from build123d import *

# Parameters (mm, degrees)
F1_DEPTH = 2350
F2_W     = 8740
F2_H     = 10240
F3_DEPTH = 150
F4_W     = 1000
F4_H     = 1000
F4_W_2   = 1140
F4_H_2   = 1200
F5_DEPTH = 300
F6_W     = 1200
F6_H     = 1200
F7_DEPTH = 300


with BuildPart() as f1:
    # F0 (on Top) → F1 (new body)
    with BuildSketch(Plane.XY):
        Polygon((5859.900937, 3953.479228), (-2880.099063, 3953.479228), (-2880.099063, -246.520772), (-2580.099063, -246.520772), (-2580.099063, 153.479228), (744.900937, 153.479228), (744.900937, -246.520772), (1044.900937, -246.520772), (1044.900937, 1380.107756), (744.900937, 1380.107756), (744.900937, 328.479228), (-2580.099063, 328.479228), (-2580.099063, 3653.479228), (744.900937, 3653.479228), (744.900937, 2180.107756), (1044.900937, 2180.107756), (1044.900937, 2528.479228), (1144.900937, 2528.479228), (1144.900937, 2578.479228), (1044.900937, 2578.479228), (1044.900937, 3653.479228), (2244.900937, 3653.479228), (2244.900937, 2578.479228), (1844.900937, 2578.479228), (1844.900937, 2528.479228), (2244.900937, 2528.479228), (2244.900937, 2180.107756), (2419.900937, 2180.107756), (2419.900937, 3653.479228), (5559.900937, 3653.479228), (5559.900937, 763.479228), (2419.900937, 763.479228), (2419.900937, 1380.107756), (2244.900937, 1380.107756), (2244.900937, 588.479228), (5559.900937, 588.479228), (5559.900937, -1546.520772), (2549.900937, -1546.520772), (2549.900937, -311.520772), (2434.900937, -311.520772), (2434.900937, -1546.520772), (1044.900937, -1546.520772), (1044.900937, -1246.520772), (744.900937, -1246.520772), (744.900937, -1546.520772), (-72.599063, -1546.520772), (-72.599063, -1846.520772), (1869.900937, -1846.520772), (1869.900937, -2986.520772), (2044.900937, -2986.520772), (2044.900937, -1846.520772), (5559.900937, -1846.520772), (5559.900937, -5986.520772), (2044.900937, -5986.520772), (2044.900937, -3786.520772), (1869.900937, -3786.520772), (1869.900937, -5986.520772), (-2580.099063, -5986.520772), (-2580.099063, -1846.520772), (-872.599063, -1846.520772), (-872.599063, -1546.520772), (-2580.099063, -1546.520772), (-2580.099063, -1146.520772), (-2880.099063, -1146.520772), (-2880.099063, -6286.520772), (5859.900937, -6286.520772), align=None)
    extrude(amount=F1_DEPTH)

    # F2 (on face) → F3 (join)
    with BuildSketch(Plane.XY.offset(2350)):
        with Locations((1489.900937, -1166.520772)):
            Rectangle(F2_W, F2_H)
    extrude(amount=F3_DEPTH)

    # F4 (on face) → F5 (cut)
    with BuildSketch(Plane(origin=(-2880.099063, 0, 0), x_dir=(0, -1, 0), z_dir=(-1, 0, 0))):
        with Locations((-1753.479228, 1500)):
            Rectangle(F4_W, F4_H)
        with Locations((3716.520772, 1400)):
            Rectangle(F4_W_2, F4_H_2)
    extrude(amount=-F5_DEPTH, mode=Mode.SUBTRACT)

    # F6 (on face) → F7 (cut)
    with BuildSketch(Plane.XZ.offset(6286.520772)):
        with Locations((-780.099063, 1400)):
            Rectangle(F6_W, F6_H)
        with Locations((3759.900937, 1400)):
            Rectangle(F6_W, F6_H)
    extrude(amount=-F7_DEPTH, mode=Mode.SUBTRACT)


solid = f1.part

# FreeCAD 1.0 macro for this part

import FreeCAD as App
import Part
import Sketcher

doc = App.newDocument("Part")
params = doc.addObject("Spreadsheet::Sheet", "Params")
for row, (alias, value) in enumerate([
    ("sketch1_width", "8740 mm"),
    ("sketch1_width2", "300 mm"),
    ("sketch1_width3", "3325 mm"),
    ("sketch1_width4", "100 mm"),
    ("sketch1_width5", "1200 mm"),
    ("pad1_length", "2350 mm"),
    ("sketch2_width", "8740 mm"),
    ("sketch2_height", "10240 mm"),
    ("pad2_length", "150 mm"),
    ("sketch3_width", "1000 mm"),
    ("sketch3_width2", "1140 mm"),
    ("sketch3_height", "1200 mm"),
    ("pocket1_length", "300 mm"),
    ("sketch4_width", "1200 mm"),
    ("pocket2_length", "300 mm"),
], start=1):
    params.set(f"A{row}", alias)
    params.set(f"B{row}", "=" + value)
    params.setAlias(f"B{row}", alias)

body = doc.addObject("PartDesign::Body", "Body")

sketch1 = body.newObject("Sketcher::SketchObject", "Sketch")
sketch1.AttachmentSupport = (doc.getObject("XY_Plane"), [""])
sketch1.MapMode = "FlatFace"
sketch1.addGeometry(Part.LineSegment(App.Vector(5860, 3953, 0), App.Vector(-2880, 3953, 0)), False)
sketch1.addGeometry(Part.LineSegment(App.Vector(-2880, 3953, 0), App.Vector(-2880, -247, 0)), False)
sketch1.addGeometry(Part.LineSegment(App.Vector(-2880, -247, 0), App.Vector(-2580, -247, 0)), False)
sketch1.addGeometry(Part.LineSegment(App.Vector(-2580, -247, 0), App.Vector(-2580, 153, 0)), False)
sketch1.addGeometry(Part.LineSegment(App.Vector(-2580, 153, 0), App.Vector(745, 153, 0)), False)
sketch1.addGeometry(Part.LineSegment(App.Vector(745, 153, 0), App.Vector(745, -247, 0)), False)
sketch1.addGeometry(Part.LineSegment(App.Vector(745, -247, 0), App.Vector(1045, -247, 0)), False)
sketch1.addGeometry(Part.LineSegment(App.Vector(1045, -247, 0), App.Vector(1045, 1380, 0)), False)
sketch1.addGeometry(Part.LineSegment(App.Vector(1045, 1380, 0), App.Vector(745, 1380, 0)), False)
sketch1.addGeometry(Part.LineSegment(App.Vector(745, 1380, 0), App.Vector(745, 328, 0)), False)
sketch1.addGeometry(Part.LineSegment(App.Vector(745, 328, 0), App.Vector(-2580, 328, 0)), False)
sketch1.addGeometry(Part.LineSegment(App.Vector(-2580, 328, 0), App.Vector(-2580, 3653, 0)), False)
sketch1.addGeometry(Part.LineSegment(App.Vector(-2580, 3653, 0), App.Vector(745, 3653, 0)), False)
sketch1.addGeometry(Part.LineSegment(App.Vector(745, 3653, 0), App.Vector(745, 2180, 0)), False)
sketch1.addGeometry(Part.LineSegment(App.Vector(745, 2180, 0), App.Vector(1045, 2180, 0)), False)
sketch1.addGeometry(Part.LineSegment(App.Vector(1045, 2180, 0), App.Vector(1045, 2528, 0)), False)
sketch1.addGeometry(Part.LineSegment(App.Vector(1045, 2528, 0), App.Vector(1145, 2528, 0)), False)
sketch1.addGeometry(Part.LineSegment(App.Vector(1145, 2528, 0), App.Vector(1145, 2578, 0)), False)
sketch1.addGeometry(Part.LineSegment(App.Vector(1145, 2578, 0), App.Vector(1045, 2578, 0)), False)
sketch1.addGeometry(Part.LineSegment(App.Vector(1045, 2578, 0), App.Vector(1045, 3653, 0)), False)
sketch1.addGeometry(Part.LineSegment(App.Vector(1045, 3653, 0), App.Vector(2245, 3653, 0)), False)
sketch1.addGeometry(Part.LineSegment(App.Vector(2245, 3653, 0), App.Vector(2245, 2578, 0)), False)
sketch1.addGeometry(Part.LineSegment(App.Vector(2245, 2578, 0), App.Vector(1845, 2578, 0)), False)
sketch1.addGeometry(Part.LineSegment(App.Vector(1845, 2578, 0), App.Vector(1845, 2528, 0)), False)
sketch1.addGeometry(Part.LineSegment(App.Vector(1845, 2528, 0), App.Vector(2245, 2528, 0)), False)
sketch1.addGeometry(Part.LineSegment(App.Vector(2245, 2528, 0), App.Vector(2245, 2180, 0)), False)
sketch1.addGeometry(Part.LineSegment(App.Vector(2245, 2180, 0), App.Vector(2420, 2180, 0)), False)
sketch1.addGeometry(Part.LineSegment(App.Vector(2420, 2180, 0), App.Vector(2420, 3653, 0)), False)
sketch1.addGeometry(Part.LineSegment(App.Vector(2420, 3653, 0), App.Vector(5560, 3653, 0)), False)
sketch1.addGeometry(Part.LineSegment(App.Vector(5560, 3653, 0), App.Vector(5560, 763, 0)), False)
sketch1.addGeometry(Part.LineSegment(App.Vector(5560, 763, 0), App.Vector(2420, 763, 0)), False)
sketch1.addGeometry(Part.LineSegment(App.Vector(2420, 763, 0), App.Vector(2420, 1380, 0)), False)
sketch1.addGeometry(Part.LineSegment(App.Vector(2420, 1380, 0), App.Vector(2245, 1380, 0)), False)
sketch1.addGeometry(Part.LineSegment(App.Vector(2245, 1380, 0), App.Vector(2245, 588, 0)), False)
sketch1.addGeometry(Part.LineSegment(App.Vector(2245, 588, 0), App.Vector(5560, 588, 0)), False)
sketch1.addGeometry(Part.LineSegment(App.Vector(5560, 588, 0), App.Vector(5560, -1547, 0)), False)
sketch1.addGeometry(Part.LineSegment(App.Vector(5560, -1547, 0), App.Vector(2550, -1547, 0)), False)
sketch1.addGeometry(Part.LineSegment(App.Vector(2550, -1547, 0), App.Vector(2550, -312, 0)), False)
sketch1.addGeometry(Part.LineSegment(App.Vector(2550, -312, 0), App.Vector(2435, -312, 0)), False)
sketch1.addGeometry(Part.LineSegment(App.Vector(2435, -312, 0), App.Vector(2435, -1547, 0)), False)
sketch1.addGeometry(Part.LineSegment(App.Vector(2435, -1547, 0), App.Vector(1045, -1547, 0)), False)
sketch1.addGeometry(Part.LineSegment(App.Vector(1045, -1547, 0), App.Vector(1045, -1247, 0)), False)
sketch1.addGeometry(Part.LineSegment(App.Vector(1045, -1247, 0), App.Vector(745, -1247, 0)), False)
sketch1.addGeometry(Part.LineSegment(App.Vector(745, -1247, 0), App.Vector(745, -1547, 0)), False)
sketch1.addGeometry(Part.LineSegment(App.Vector(745, -1547, 0), App.Vector(-73, -1547, 0)), False)
sketch1.addGeometry(Part.LineSegment(App.Vector(-73, -1547, 0), App.Vector(-73, -1847, 0)), False)
sketch1.addGeometry(Part.LineSegment(App.Vector(-73, -1847, 0), App.Vector(1870, -1847, 0)), False)
sketch1.addGeometry(Part.LineSegment(App.Vector(1870, -1847, 0), App.Vector(1870, -2987, 0)), False)
sketch1.addGeometry(Part.LineSegment(App.Vector(1870, -2987, 0), App.Vector(2045, -2987, 0)), False)
sketch1.addGeometry(Part.LineSegment(App.Vector(2045, -2987, 0), App.Vector(2045, -1847, 0)), False)
sketch1.addGeometry(Part.LineSegment(App.Vector(2045, -1847, 0), App.Vector(5560, -1847, 0)), False)
sketch1.addGeometry(Part.LineSegment(App.Vector(5560, -1847, 0), App.Vector(5560, -5987, 0)), False)
sketch1.addGeometry(Part.LineSegment(App.Vector(5560, -5987, 0), App.Vector(2045, -5987, 0)), False)
sketch1.addGeometry(Part.LineSegment(App.Vector(2045, -5987, 0), App.Vector(2045, -3787, 0)), False)
sketch1.addGeometry(Part.LineSegment(App.Vector(2045, -3787, 0), App.Vector(1870, -3787, 0)), False)
sketch1.addGeometry(Part.LineSegment(App.Vector(1870, -3787, 0), App.Vector(1870, -5987, 0)), False)
sketch1.addGeometry(Part.LineSegment(App.Vector(1870, -5987, 0), App.Vector(-2580, -5987, 0)), False)
sketch1.addGeometry(Part.LineSegment(App.Vector(-2580, -5987, 0), App.Vector(-2580, -1847, 0)), False)
sketch1.addGeometry(Part.LineSegment(App.Vector(-2580, -1847, 0), App.Vector(-873, -1847, 0)), False)
sketch1.addGeometry(Part.LineSegment(App.Vector(-873, -1847, 0), App.Vector(-873, -1547, 0)), False)
sketch1.addGeometry(Part.LineSegment(App.Vector(-873, -1547, 0), App.Vector(-2580, -1547, 0)), False)
sketch1.addGeometry(Part.LineSegment(App.Vector(-2580, -1547, 0), App.Vector(-2580, -1147, 0)), False)
sketch1.addGeometry(Part.LineSegment(App.Vector(-2580, -1147, 0), App.Vector(-2880, -1147, 0)), False)
sketch1.addGeometry(Part.LineSegment(App.Vector(-2880, -1147, 0), App.Vector(-2880, -6287, 0)), False)
sketch1.addGeometry(Part.LineSegment(App.Vector(-2880, -6287, 0), App.Vector(5860, -6287, 0)), False)
sketch1.addGeometry(Part.LineSegment(App.Vector(5860, -6287, 0), App.Vector(5860, 3953, 0)), False)
sketch1.addConstraint(Sketcher.Constraint("Coincident", 0, 2, 1, 1))
sketch1.addConstraint(Sketcher.Constraint("Coincident", 1, 2, 2, 1))
sketch1.addConstraint(Sketcher.Constraint("Coincident", 2, 2, 3, 1))
sketch1.addConstraint(Sketcher.Constraint("Coincident", 3, 2, 4, 1))
sketch1.addConstraint(Sketcher.Constraint("Coincident", 4, 2, 5, 1))
sketch1.addConstraint(Sketcher.Constraint("Coincident", 5, 2, 6, 1))
sketch1.addConstraint(Sketcher.Constraint("Coincident", 6, 2, 7, 1))
sketch1.addConstraint(Sketcher.Constraint("Coincident", 7, 2, 8, 1))
sketch1.addConstraint(Sketcher.Constraint("Coincident", 8, 2, 9, 1))
sketch1.addConstraint(Sketcher.Constraint("Coincident", 9, 2, 10, 1))
sketch1.addConstraint(Sketcher.Constraint("Coincident", 10, 2, 11, 1))
sketch1.addConstraint(Sketcher.Constraint("Coincident", 11, 2, 12, 1))
sketch1.addConstraint(Sketcher.Constraint("Coincident", 12, 2, 13, 1))
sketch1.addConstraint(Sketcher.Constraint("Coincident", 13, 2, 14, 1))
sketch1.addConstraint(Sketcher.Constraint("Coincident", 14, 2, 15, 1))
sketch1.addConstraint(Sketcher.Constraint("Coincident", 15, 2, 16, 1))
sketch1.addConstraint(Sketcher.Constraint("Coincident", 16, 2, 17, 1))
sketch1.addConstraint(Sketcher.Constraint("Coincident", 17, 2, 18, 1))
sketch1.addConstraint(Sketcher.Constraint("Coincident", 18, 2, 19, 1))
sketch1.addConstraint(Sketcher.Constraint("Coincident", 19, 2, 20, 1))
sketch1.addConstraint(Sketcher.Constraint("Coincident", 20, 2, 21, 1))
sketch1.addConstraint(Sketcher.Constraint("Coincident", 21, 2, 22, 1))
sketch1.addConstraint(Sketcher.Constraint("Coincident", 22, 2, 23, 1))
sketch1.addConstraint(Sketcher.Constraint("Coincident", 23, 2, 24, 1))
sketch1.addConstraint(Sketcher.Constraint("Coincident", 24, 2, 25, 1))
sketch1.addConstraint(Sketcher.Constraint("Coincident", 25, 2, 26, 1))
sketch1.addConstraint(Sketcher.Constraint("Coincident", 26, 2, 27, 1))
sketch1.addConstraint(Sketcher.Constraint("Coincident", 27, 2, 28, 1))
sketch1.addConstraint(Sketcher.Constraint("Coincident", 28, 2, 29, 1))
sketch1.addConstraint(Sketcher.Constraint("Coincident", 29, 2, 30, 1))
sketch1.addConstraint(Sketcher.Constraint("Coincident", 30, 2, 31, 1))
sketch1.addConstraint(Sketcher.Constraint("Coincident", 31, 2, 32, 1))
sketch1.addConstraint(Sketcher.Constraint("Coincident", 32, 2, 33, 1))
sketch1.addConstraint(Sketcher.Constraint("Coincident", 33, 2, 34, 1))
sketch1.addConstraint(Sketcher.Constraint("Coincident", 34, 2, 35, 1))
sketch1.addConstraint(Sketcher.Constraint("Coincident", 35, 2, 36, 1))
sketch1.addConstraint(Sketcher.Constraint("Coincident", 36, 2, 37, 1))
sketch1.addConstraint(Sketcher.Constraint("Coincident", 37, 2, 38, 1))
sketch1.addConstraint(Sketcher.Constraint("Coincident", 38, 2, 39, 1))
sketch1.addConstraint(Sketcher.Constraint("Coincident", 39, 2, 40, 1))
sketch1.addConstraint(Sketcher.Constraint("Coincident", 40, 2, 41, 1))
sketch1.addConstraint(Sketcher.Constraint("Coincident", 41, 2, 42, 1))
sketch1.addConstraint(Sketcher.Constraint("Coincident", 42, 2, 43, 1))
sketch1.addConstraint(Sketcher.Constraint("Coincident", 43, 2, 44, 1))
sketch1.addConstraint(Sketcher.Constraint("Coincident", 44, 2, 45, 1))
sketch1.addConstraint(Sketcher.Constraint("Coincident", 45, 2, 46, 1))
sketch1.addConstraint(Sketcher.Constraint("Coincident", 46, 2, 47, 1))
sketch1.addConstraint(Sketcher.Constraint("Coincident", 47, 2, 48, 1))
sketch1.addConstraint(Sketcher.Constraint("Coincident", 48, 2, 49, 1))
sketch1.addConstraint(Sketcher.Constraint("Coincident", 49, 2, 50, 1))
sketch1.addConstraint(Sketcher.Constraint("Coincident", 50, 2, 51, 1))
sketch1.addConstraint(Sketcher.Constraint("Coincident", 51, 2, 52, 1))
sketch1.addConstraint(Sketcher.Constraint("Coincident", 52, 2, 53, 1))
sketch1.addConstraint(Sketcher.Constraint("Coincident", 53, 2, 54, 1))
sketch1.addConstraint(Sketcher.Constraint("Coincident", 54, 2, 55, 1))
sketch1.addConstraint(Sketcher.Constraint("Coincident", 55, 2, 56, 1))
sketch1.addConstraint(Sketcher.Constraint("Coincident", 56, 2, 57, 1))
sketch1.addConstraint(Sketcher.Constraint("Coincident", 57, 2, 58, 1))
sketch1.addConstraint(Sketcher.Constraint("Coincident", 58, 2, 59, 1))
sketch1.addConstraint(Sketcher.Constraint("Coincident", 59, 2, 60, 1))
sketch1.addConstraint(Sketcher.Constraint("Coincident", 60, 2, 61, 1))
sketch1.addConstraint(Sketcher.Constraint("Coincident", 61, 2, 62, 1))
sketch1.addConstraint(Sketcher.Constraint("Coincident", 62, 2, 63, 1))
sketch1.addConstraint(Sketcher.Constraint("Coincident", 63, 2, 64, 1))
sketch1.addConstraint(Sketcher.Constraint("Coincident", 64, 2, 65, 1))
sketch1.addConstraint(Sketcher.Constraint("Coincident", 65, 2, 0, 1))
sketch1.addConstraint(Sketcher.Constraint("Horizontal", 0))
sketch1.addConstraint(Sketcher.Constraint("Vertical", 1))
sketch1.addConstraint(Sketcher.Constraint("Horizontal", 2))
sketch1.addConstraint(Sketcher.Constraint("Vertical", 3))
sketch1.addConstraint(Sketcher.Constraint("Horizontal", 4))
sketch1.addConstraint(Sketcher.Constraint("Vertical", 5))
sketch1.addConstraint(Sketcher.Constraint("Horizontal", 6))
sketch1.addConstraint(Sketcher.Constraint("Vertical", 7))
sketch1.addConstraint(Sketcher.Constraint("Horizontal", 8))
sketch1.addConstraint(Sketcher.Constraint("Vertical", 9))
sketch1.addConstraint(Sketcher.Constraint("Horizontal", 10))
sketch1.addConstraint(Sketcher.Constraint("Vertical", 11))
sketch1.addConstraint(Sketcher.Constraint("Horizontal", 12))
sketch1.addConstraint(Sketcher.Constraint("Vertical", 13))
sketch1.addConstraint(Sketcher.Constraint("Horizontal", 14))
sketch1.addConstraint(Sketcher.Constraint("Vertical", 15))
sketch1.addConstraint(Sketcher.Constraint("Horizontal", 16))
sketch1.addConstraint(Sketcher.Constraint("Vertical", 17))
sketch1.addConstraint(Sketcher.Constraint("Horizontal", 18))
sketch1.addConstraint(Sketcher.Constraint("Vertical", 19))
sketch1.addConstraint(Sketcher.Constraint("Horizontal", 20))
sketch1.addConstraint(Sketcher.Constraint("Vertical", 21))
sketch1.addConstraint(Sketcher.Constraint("Horizontal", 22))
sketch1.addConstraint(Sketcher.Constraint("Vertical", 23))
sketch1.addConstraint(Sketcher.Constraint("Horizontal", 24))
sketch1.addConstraint(Sketcher.Constraint("Vertical", 25))
sketch1.addConstraint(Sketcher.Constraint("Horizontal", 26))
sketch1.addConstraint(Sketcher.Constraint("Vertical", 27))
sketch1.addConstraint(Sketcher.Constraint("Horizontal", 28))
sketch1.addConstraint(Sketcher.Constraint("Vertical", 29))
sketch1.addConstraint(Sketcher.Constraint("Horizontal", 30))
sketch1.addConstraint(Sketcher.Constraint("Vertical", 31))
sketch1.addConstraint(Sketcher.Constraint("Horizontal", 32))
sketch1.addConstraint(Sketcher.Constraint("Vertical", 33))
sketch1.addConstraint(Sketcher.Constraint("Horizontal", 34))
sketch1.addConstraint(Sketcher.Constraint("Vertical", 35))
sketch1.addConstraint(Sketcher.Constraint("Horizontal", 36))
sketch1.addConstraint(Sketcher.Constraint("Vertical", 37))
sketch1.addConstraint(Sketcher.Constraint("Horizontal", 38))
sketch1.addConstraint(Sketcher.Constraint("Vertical", 39))
sketch1.addConstraint(Sketcher.Constraint("Horizontal", 40))
sketch1.addConstraint(Sketcher.Constraint("Vertical", 41))
sketch1.addConstraint(Sketcher.Constraint("Horizontal", 42))
sketch1.addConstraint(Sketcher.Constraint("Vertical", 43))
sketch1.addConstraint(Sketcher.Constraint("Horizontal", 44))
sketch1.addConstraint(Sketcher.Constraint("Vertical", 45))
sketch1.addConstraint(Sketcher.Constraint("Horizontal", 46))
sketch1.addConstraint(Sketcher.Constraint("Vertical", 47))
sketch1.addConstraint(Sketcher.Constraint("Horizontal", 48))
sketch1.addConstraint(Sketcher.Constraint("Vertical", 49))
sketch1.addConstraint(Sketcher.Constraint("Horizontal", 50))
sketch1.addConstraint(Sketcher.Constraint("Vertical", 51))
sketch1.addConstraint(Sketcher.Constraint("Horizontal", 52))
sketch1.addConstraint(Sketcher.Constraint("Vertical", 53))
sketch1.addConstraint(Sketcher.Constraint("Horizontal", 54))
sketch1.addConstraint(Sketcher.Constraint("Vertical", 55))
sketch1.addConstraint(Sketcher.Constraint("Horizontal", 56))
sketch1.addConstraint(Sketcher.Constraint("Vertical", 57))
sketch1.addConstraint(Sketcher.Constraint("Horizontal", 58))
sketch1.addConstraint(Sketcher.Constraint("Vertical", 59))
sketch1.addConstraint(Sketcher.Constraint("Horizontal", 60))
sketch1.addConstraint(Sketcher.Constraint("Vertical", 61))
sketch1.addConstraint(Sketcher.Constraint("Horizontal", 62))
sketch1.addConstraint(Sketcher.Constraint("Vertical", 63))
sketch1.addConstraint(Sketcher.Constraint("Horizontal", 64))
sketch1.addConstraint(Sketcher.Constraint("Vertical", 65))
sketch1.addConstraint(Sketcher.Constraint("Horizontal", 2, 2, 5, 2))
sketch1.addConstraint(Sketcher.Constraint("Horizontal", 12, 2, 19, 2))
sketch1.addConstraint(Sketcher.Constraint("Horizontal", 18, 2, 21, 2))
sketch1.addConstraint(Sketcher.Constraint("Horizontal", 16, 2, 23, 2))
sketch1.addConstraint(Sketcher.Constraint("Horizontal", 14, 2, 25, 2))
sketch1.addConstraint(Sketcher.Constraint("Horizontal", 20, 2, 27, 2))
sketch1.addConstraint(Sketcher.Constraint("Horizontal", 8, 2, 31, 2))
sketch1.addConstraint(Sketcher.Constraint("Horizontal", 36, 2, 39, 2))
sketch1.addConstraint(Sketcher.Constraint("Horizontal", 40, 2, 43, 2))
sketch1.addConstraint(Sketcher.Constraint("Horizontal", 46, 2, 49, 2))
sketch1.addConstraint(Sketcher.Constraint("Horizontal", 52, 2, 55, 2))
sketch1.addConstraint(Sketcher.Constraint("Horizontal", 50, 2, 57, 2))
sketch1.addConstraint(Sketcher.Constraint("Horizontal", 44, 2, 59, 2))
sketch1.addConstraint(Sketcher.Constraint("Vertical", 5, 2, 8, 2))
sketch1.addConstraint(Sketcher.Constraint("Vertical", 3, 2, 10, 2))
sketch1.addConstraint(Sketcher.Constraint("Vertical", 9, 2, 12, 2))
sketch1.addConstraint(Sketcher.Constraint("Vertical", 7, 2, 14, 2))
sketch1.addConstraint(Sketcher.Constraint("Vertical", 15, 2, 18, 2))
sketch1.addConstraint(Sketcher.Constraint("Vertical", 21, 2, 24, 2))
sketch1.addConstraint(Sketcher.Constraint("Vertical", 27, 2, 30, 2))
sketch1.addConstraint(Sketcher.Constraint("Vertical", 25, 2, 32, 2))
sketch1.addConstraint(Sketcher.Constraint("Vertical", 29, 2, 34, 2))
sketch1.addConstraint(Sketcher.Constraint("Vertical", 19, 2, 40, 2))
sketch1.addConstraint(Sketcher.Constraint("Vertical", 13, 2, 42, 2))
sketch1.addConstraint(Sketcher.Constraint("Vertical", 35, 2, 50, 2))
sketch1.addConstraint(Sketcher.Constraint("Vertical", 49, 2, 52, 2))
sketch1.addConstraint(Sketcher.Constraint("Vertical", 47, 2, 54, 2))
sketch1.addConstraint(Sketcher.Constraint("Vertical", 11, 2, 56, 2))
sketch1.addConstraint(Sketcher.Constraint("Vertical", 57, 2, 60, 2))
sketch1.addConstraint(Sketcher.Constraint("Vertical", 1, 2, 62, 2))
sketch1.addConstraint(Sketcher.Constraint("Equal", 2, 6))
sketch1.addConstraint(Sketcher.Constraint("Equal", 32, 48))
sketch1.addConstraint(Sketcher.Constraint("Equal", 24, 3))
sketch1.addConstraint(Sketcher.Constraint("Equal", 12, 11))
sketch1.addConstraint(Sketcher.Constraint("Equal", 62, 41))
sketch1.addConstraint(Sketcher.Constraint("Equal", 43, 45))
sketch1.addConstraint(Sketcher.Constraint("Equal", 5, 61))
sketch1.addConstraint(Sketcher.Constraint("DistanceX", 0, 2, 0, 1, 8740.0))
sketch1.addConstraint(Sketcher.Constraint("DistanceX", 2, 1, 2, 2, 300.0))
sketch1.addConstraint(Sketcher.Constraint("DistanceX", 4, 1, 4, 2, 3325.0))
sketch1.addConstraint(Sketcher.Constraint("DistanceX", 16, 1, 16, 2, 100.0))
sketch1.addConstraint(Sketcher.Constraint("DistanceX", 20, 1, 20, 2, 1200.0))
sketch1.addConstraint(Sketcher.Constraint("DistanceX", 22, 2, 22, 1, 400.0))
sketch1.addConstraint(Sketcher.Constraint("DistanceX", 26, 1, 26, 2, 175.0))
sketch1.addConstraint(Sketcher.Constraint("DistanceX", 28, 1, 28, 2, 3140.0))
sketch1.addConstraint(Sketcher.Constraint("DistanceX", 36, 2, 36, 1, 3010.0))
sketch1.addConstraint(Sketcher.Constraint("DistanceX", 38, 2, 38, 1, 115.0))
sketch1.addConstraint(Sketcher.Constraint("DistanceX", 50, 1, 50, 2, 3515.0))
sketch1.addConstraint(Sketcher.Constraint("DistanceY", 1, 2, 1, 1, 4200.0))
sketch1.addConstraint(Sketcher.Constraint("DistanceY", 17, 1, 17, 2, 50.0))
sketch1.addConstraint(Sketcher.Constraint("DistanceY", 19, 1, 19, 2, 1075.0))
sketch1.addConstraint(Sketcher.Constraint("DistanceY", 29, 2, 29, 1, 2890.0))
sketch1.addConstraint(Sketcher.Constraint("DistanceY", 35, 2, 35, 1, 2135.0))
sketch1.addConstraint(Sketcher.Constraint("DistanceY", 37, 1, 37, 2, 1235.0))
sketch1.addConstraint(Sketcher.Constraint("DistanceY", 47, 2, 47, 1, 1140.0))
sketch1.addConstraint(Sketcher.Constraint("DistanceY", 51, 2, 51, 1, 4140.0))
sketch1.addConstraint(Sketcher.Constraint("DistanceY", 53, 1, 53, 2, 2200.0))
sketch1.addConstraint(Sketcher.Constraint("DistanceY", 63, 2, 63, 1, 5140.0))
sketch1.addConstraint(Sketcher.Constraint("DistanceY", 65, 1, 65, 2, 10240.0))
sketch1.addConstraint(Sketcher.Constraint("DistanceX", 44, 2, 44, 1, 817.5))
sketch1.addConstraint(Sketcher.Constraint("DistanceX", 58, 1, 58, 2, 1707.5))
sketch1.addConstraint(Sketcher.Constraint("DistanceY", 7, 1, 7, 2, 1626.628528))
sketch1.addConstraint(Sketcher.Constraint("DistanceY", 9, 2, 9, 1, 1051.628528))
sketch1.addConstraint(Sketcher.Constraint("DistanceY", 13, 2, 13, 1, 1473.371472))
sketch1.addConstraint(Sketcher.Constraint("DistanceY", -1, 1, 0, 2, 3953.479228))
sketch1.addConstraint(Sketcher.Constraint("DistanceX", 0, 2, -1, 1, 2880.099063))
sketch1.setExpression("Constraints[169]", "Params.sketch1_width")
sketch1.setExpression("Constraints[170]", "Params.sketch1_width2")
sketch1.setExpression("Constraints[171]", "Params.sketch1_width3")
sketch1.setExpression("Constraints[172]", "Params.sketch1_width4")
sketch1.setExpression("Constraints[173]", "Params.sketch1_width5")
pad1 = body.newObject("PartDesign::Pad", "Pad")
pad1.Profile = sketch1
pad1.setExpression("Length", "Params.pad1_length")

sketch2 = body.newObject("Sketcher::SketchObject", "Sketch001")
sketch2.AttachmentSupport = (doc.getObject("XY_Plane"), [""])
sketch2.MapMode = "FlatFace"
sketch2.AttachmentOffset = App.Placement(App.Vector(0, 0, 2350), App.Rotation())
sketch2.addGeometry(Part.LineSegment(App.Vector(-2880, 3953, 0), App.Vector(-2880, -6287, 0)), False)
sketch2.addGeometry(Part.LineSegment(App.Vector(-2880, -6287, 0), App.Vector(5860, -6287, 0)), False)
sketch2.addGeometry(Part.LineSegment(App.Vector(5860, -6287, 0), App.Vector(5860, 3953, 0)), False)
sketch2.addGeometry(Part.LineSegment(App.Vector(5860, 3953, 0), App.Vector(-2880, 3953, 0)), False)
sketch2.addConstraint(Sketcher.Constraint("Coincident", 0, 2, 1, 1))
sketch2.addConstraint(Sketcher.Constraint("Coincident", 1, 2, 2, 1))
sketch2.addConstraint(Sketcher.Constraint("Coincident", 2, 2, 3, 1))
sketch2.addConstraint(Sketcher.Constraint("Coincident", 3, 2, 0, 1))
sketch2.addConstraint(Sketcher.Constraint("Vertical", 0))
sketch2.addConstraint(Sketcher.Constraint("Horizontal", 1))
sketch2.addConstraint(Sketcher.Constraint("Vertical", 2))
sketch2.addConstraint(Sketcher.Constraint("Horizontal", 3))
sketch2.addConstraint(Sketcher.Constraint("DistanceX", 1, 1, 1, 2, 8740.0))
sketch2.addConstraint(Sketcher.Constraint("DistanceY", 0, 2, 0, 1, 10240.0))
sketch2.addConstraint(Sketcher.Constraint("DistanceY", 0, 2, -1, 1, 6286.520772))
sketch2.addConstraint(Sketcher.Constraint("DistanceX", 0, 2, -1, 1, 2880.099063))
sketch2.setExpression("Constraints[8]", "Params.sketch2_width")
sketch2.setExpression("Constraints[9]", "Params.sketch2_height")
pad2 = body.newObject("PartDesign::Pad", "Pad001")
pad2.Profile = sketch2
pad2.setExpression("Length", "Params.pad2_length")

sketch3 = body.newObject("Sketcher::SketchObject", "Sketch002")
sketch3.AttachmentSupport = (doc.getObject("YZ_Plane"), [""])
sketch3.MapMode = "FlatFace"
sketch3.AttachmentOffset = App.Placement(App.Vector(0, 0, -2880.099063), App.Rotation())
sketch3.addGeometry(Part.LineSegment(App.Vector(2253, 2000, 0), App.Vector(2253, 1000, 0)), False)
sketch3.addGeometry(Part.LineSegment(App.Vector(2253, 1000, 0), App.Vector(1253, 1000, 0)), False)
sketch3.addGeometry(Part.LineSegment(App.Vector(1253, 1000, 0), App.Vector(1253, 2000, 0)), False)
sketch3.addGeometry(Part.LineSegment(App.Vector(1253, 2000, 0), App.Vector(2253, 2000, 0)), False)
sketch3.addGeometry(Part.LineSegment(App.Vector(-3147, 2000, 0), App.Vector(-3147, 800, 0)), False)
sketch3.addGeometry(Part.LineSegment(App.Vector(-3147, 800, 0), App.Vector(-4287, 800, 0)), False)
sketch3.addGeometry(Part.LineSegment(App.Vector(-4287, 800, 0), App.Vector(-4287, 2000, 0)), False)
sketch3.addGeometry(Part.LineSegment(App.Vector(-4287, 2000, 0), App.Vector(-3147, 2000, 0)), False)
sketch3.addConstraint(Sketcher.Constraint("Coincident", 0, 2, 1, 1))
sketch3.addConstraint(Sketcher.Constraint("Coincident", 1, 2, 2, 1))
sketch3.addConstraint(Sketcher.Constraint("Coincident", 2, 2, 3, 1))
sketch3.addConstraint(Sketcher.Constraint("Coincident", 3, 2, 0, 1))
sketch3.addConstraint(Sketcher.Constraint("Coincident", 4, 2, 5, 1))
sketch3.addConstraint(Sketcher.Constraint("Coincident", 5, 2, 6, 1))
sketch3.addConstraint(Sketcher.Constraint("Coincident", 6, 2, 7, 1))
sketch3.addConstraint(Sketcher.Constraint("Coincident", 7, 2, 4, 1))
sketch3.addConstraint(Sketcher.Constraint("Vertical", 0))
sketch3.addConstraint(Sketcher.Constraint("Horizontal", 1))
sketch3.addConstraint(Sketcher.Constraint("Vertical", 2))
sketch3.addConstraint(Sketcher.Constraint("Horizontal", 3))
sketch3.addConstraint(Sketcher.Constraint("Vertical", 4))
sketch3.addConstraint(Sketcher.Constraint("Horizontal", 5))
sketch3.addConstraint(Sketcher.Constraint("Vertical", 6))
sketch3.addConstraint(Sketcher.Constraint("Horizontal", 7))
sketch3.addConstraint(Sketcher.Constraint("Horizontal", 3, 2, 6, 2))
sketch3.addConstraint(Sketcher.Constraint("Equal", 3, 0))
sketch3.addConstraint(Sketcher.Constraint("DistanceX", 1, 2, 1, 1, 1000.0))
sketch3.addConstraint(Sketcher.Constraint("DistanceX", 5, 2, 5, 1, 1140.0))
sketch3.addConstraint(Sketcher.Constraint("DistanceY", 4, 2, 4, 1, 1200.0))
sketch3.addConstraint(Sketcher.Constraint("DistanceY", -1, 1, 0, 2, 1000.0))
sketch3.addConstraint(Sketcher.Constraint("DistanceX", 4, 2, 1, 2, 4400.0))
sketch3.addConstraint(Sketcher.Constraint("DistanceX", -1, 1, 0, 2, 2253.479228))
sketch3.setExpression("Constraints[18]", "Params.sketch3_width")
sketch3.setExpression("Constraints[19]", "Params.sketch3_width2")
sketch3.setExpression("Constraints[20]", "Params.sketch3_height")
pocket1 = body.newObject("PartDesign::Pocket", "Pocket")
pocket1.Profile = sketch3
pocket1.setExpression("Length", "Params.pocket1_length")
pocket1.Reversed = True

sketch4 = body.newObject("Sketcher::SketchObject", "Sketch003")
sketch4.AttachmentSupport = (doc.getObject("XZ_Plane"), [""])
sketch4.MapMode = "FlatFace"
sketch4.AttachmentOffset = App.Placement(App.Vector(0, 0, 6286.520772), App.Rotation())
sketch4.addGeometry(Part.LineSegment(App.Vector(-1380, 2000, 0), App.Vector(-1380, 800, 0)), False)
sketch4.addGeometry(Part.LineSegment(App.Vector(-1380, 800, 0), App.Vector(-180, 800, 0)), False)
sketch4.addGeometry(Part.LineSegment(App.Vector(-180, 800, 0), App.Vector(-180, 2000, 0)), False)
sketch4.addGeometry(Part.LineSegment(App.Vector(-180, 2000, 0), App.Vector(-1380, 2000, 0)), False)
sketch4.addGeometry(Part.LineSegment(App.Vector(3160, 2000, 0), App.Vector(3160, 800, 0)), False)
sketch4.addGeometry(Part.LineSegment(App.Vector(3160, 800, 0), App.Vector(4360, 800, 0)), False)
sketch4.addGeometry(Part.LineSegment(App.Vector(4360, 800, 0), App.Vector(4360, 2000, 0)), False)
sketch4.addGeometry(Part.LineSegment(App.Vector(4360, 2000, 0), App.Vector(3160, 2000, 0)), False)
sketch4.addConstraint(Sketcher.Constraint("Coincident", 0, 2, 1, 1))
sketch4.addConstraint(Sketcher.Constraint("Coincident", 1, 2, 2, 1))
sketch4.addConstraint(Sketcher.Constraint("Coincident", 2, 2, 3, 1))
sketch4.addConstraint(Sketcher.Constraint("Coincident", 3, 2, 0, 1))
sketch4.addConstraint(Sketcher.Constraint("Coincident", 4, 2, 5, 1))
sketch4.addConstraint(Sketcher.Constraint("Coincident", 5, 2, 6, 1))
sketch4.addConstraint(Sketcher.Constraint("Coincident", 6, 2, 7, 1))
sketch4.addConstraint(Sketcher.Constraint("Coincident", 7, 2, 4, 1))
sketch4.addConstraint(Sketcher.Constraint("Vertical", 0))
sketch4.addConstraint(Sketcher.Constraint("Horizontal", 1))
sketch4.addConstraint(Sketcher.Constraint("Vertical", 2))
sketch4.addConstraint(Sketcher.Constraint("Horizontal", 3))
sketch4.addConstraint(Sketcher.Constraint("Vertical", 4))
sketch4.addConstraint(Sketcher.Constraint("Horizontal", 5))
sketch4.addConstraint(Sketcher.Constraint("Vertical", 6))
sketch4.addConstraint(Sketcher.Constraint("Horizontal", 7))
sketch4.addConstraint(Sketcher.Constraint("Horizontal", 1, 2, 4, 2))
sketch4.addConstraint(Sketcher.Constraint("Horizontal", 3, 2, 6, 2))
sketch4.addConstraint(Sketcher.Constraint("Equal", 3, 5))
sketch4.addConstraint(Sketcher.Constraint("Equal", 7, 0))
sketch4.addConstraint(Sketcher.Constraint("DistanceX", 1, 1, 1, 2, 1200.0))
sketch4.addConstraint(Sketcher.Constraint("DistanceY", -1, 1, 0, 2, 800.0))
sketch4.addConstraint(Sketcher.Constraint("DistanceX", 1, 2, 4, 2, 3340.0))
sketch4.addConstraint(Sketcher.Constraint("DistanceX", 0, 2, -1, 1, 1380.099063))
sketch4.setExpression("Constraints[20]", "Params.sketch4_width")
pocket2 = body.newObject("PartDesign::Pocket", "Pocket001")
pocket2.Profile = sketch4
pocket2.setExpression("Length", "Params.pocket2_length")

doc.recompute()
